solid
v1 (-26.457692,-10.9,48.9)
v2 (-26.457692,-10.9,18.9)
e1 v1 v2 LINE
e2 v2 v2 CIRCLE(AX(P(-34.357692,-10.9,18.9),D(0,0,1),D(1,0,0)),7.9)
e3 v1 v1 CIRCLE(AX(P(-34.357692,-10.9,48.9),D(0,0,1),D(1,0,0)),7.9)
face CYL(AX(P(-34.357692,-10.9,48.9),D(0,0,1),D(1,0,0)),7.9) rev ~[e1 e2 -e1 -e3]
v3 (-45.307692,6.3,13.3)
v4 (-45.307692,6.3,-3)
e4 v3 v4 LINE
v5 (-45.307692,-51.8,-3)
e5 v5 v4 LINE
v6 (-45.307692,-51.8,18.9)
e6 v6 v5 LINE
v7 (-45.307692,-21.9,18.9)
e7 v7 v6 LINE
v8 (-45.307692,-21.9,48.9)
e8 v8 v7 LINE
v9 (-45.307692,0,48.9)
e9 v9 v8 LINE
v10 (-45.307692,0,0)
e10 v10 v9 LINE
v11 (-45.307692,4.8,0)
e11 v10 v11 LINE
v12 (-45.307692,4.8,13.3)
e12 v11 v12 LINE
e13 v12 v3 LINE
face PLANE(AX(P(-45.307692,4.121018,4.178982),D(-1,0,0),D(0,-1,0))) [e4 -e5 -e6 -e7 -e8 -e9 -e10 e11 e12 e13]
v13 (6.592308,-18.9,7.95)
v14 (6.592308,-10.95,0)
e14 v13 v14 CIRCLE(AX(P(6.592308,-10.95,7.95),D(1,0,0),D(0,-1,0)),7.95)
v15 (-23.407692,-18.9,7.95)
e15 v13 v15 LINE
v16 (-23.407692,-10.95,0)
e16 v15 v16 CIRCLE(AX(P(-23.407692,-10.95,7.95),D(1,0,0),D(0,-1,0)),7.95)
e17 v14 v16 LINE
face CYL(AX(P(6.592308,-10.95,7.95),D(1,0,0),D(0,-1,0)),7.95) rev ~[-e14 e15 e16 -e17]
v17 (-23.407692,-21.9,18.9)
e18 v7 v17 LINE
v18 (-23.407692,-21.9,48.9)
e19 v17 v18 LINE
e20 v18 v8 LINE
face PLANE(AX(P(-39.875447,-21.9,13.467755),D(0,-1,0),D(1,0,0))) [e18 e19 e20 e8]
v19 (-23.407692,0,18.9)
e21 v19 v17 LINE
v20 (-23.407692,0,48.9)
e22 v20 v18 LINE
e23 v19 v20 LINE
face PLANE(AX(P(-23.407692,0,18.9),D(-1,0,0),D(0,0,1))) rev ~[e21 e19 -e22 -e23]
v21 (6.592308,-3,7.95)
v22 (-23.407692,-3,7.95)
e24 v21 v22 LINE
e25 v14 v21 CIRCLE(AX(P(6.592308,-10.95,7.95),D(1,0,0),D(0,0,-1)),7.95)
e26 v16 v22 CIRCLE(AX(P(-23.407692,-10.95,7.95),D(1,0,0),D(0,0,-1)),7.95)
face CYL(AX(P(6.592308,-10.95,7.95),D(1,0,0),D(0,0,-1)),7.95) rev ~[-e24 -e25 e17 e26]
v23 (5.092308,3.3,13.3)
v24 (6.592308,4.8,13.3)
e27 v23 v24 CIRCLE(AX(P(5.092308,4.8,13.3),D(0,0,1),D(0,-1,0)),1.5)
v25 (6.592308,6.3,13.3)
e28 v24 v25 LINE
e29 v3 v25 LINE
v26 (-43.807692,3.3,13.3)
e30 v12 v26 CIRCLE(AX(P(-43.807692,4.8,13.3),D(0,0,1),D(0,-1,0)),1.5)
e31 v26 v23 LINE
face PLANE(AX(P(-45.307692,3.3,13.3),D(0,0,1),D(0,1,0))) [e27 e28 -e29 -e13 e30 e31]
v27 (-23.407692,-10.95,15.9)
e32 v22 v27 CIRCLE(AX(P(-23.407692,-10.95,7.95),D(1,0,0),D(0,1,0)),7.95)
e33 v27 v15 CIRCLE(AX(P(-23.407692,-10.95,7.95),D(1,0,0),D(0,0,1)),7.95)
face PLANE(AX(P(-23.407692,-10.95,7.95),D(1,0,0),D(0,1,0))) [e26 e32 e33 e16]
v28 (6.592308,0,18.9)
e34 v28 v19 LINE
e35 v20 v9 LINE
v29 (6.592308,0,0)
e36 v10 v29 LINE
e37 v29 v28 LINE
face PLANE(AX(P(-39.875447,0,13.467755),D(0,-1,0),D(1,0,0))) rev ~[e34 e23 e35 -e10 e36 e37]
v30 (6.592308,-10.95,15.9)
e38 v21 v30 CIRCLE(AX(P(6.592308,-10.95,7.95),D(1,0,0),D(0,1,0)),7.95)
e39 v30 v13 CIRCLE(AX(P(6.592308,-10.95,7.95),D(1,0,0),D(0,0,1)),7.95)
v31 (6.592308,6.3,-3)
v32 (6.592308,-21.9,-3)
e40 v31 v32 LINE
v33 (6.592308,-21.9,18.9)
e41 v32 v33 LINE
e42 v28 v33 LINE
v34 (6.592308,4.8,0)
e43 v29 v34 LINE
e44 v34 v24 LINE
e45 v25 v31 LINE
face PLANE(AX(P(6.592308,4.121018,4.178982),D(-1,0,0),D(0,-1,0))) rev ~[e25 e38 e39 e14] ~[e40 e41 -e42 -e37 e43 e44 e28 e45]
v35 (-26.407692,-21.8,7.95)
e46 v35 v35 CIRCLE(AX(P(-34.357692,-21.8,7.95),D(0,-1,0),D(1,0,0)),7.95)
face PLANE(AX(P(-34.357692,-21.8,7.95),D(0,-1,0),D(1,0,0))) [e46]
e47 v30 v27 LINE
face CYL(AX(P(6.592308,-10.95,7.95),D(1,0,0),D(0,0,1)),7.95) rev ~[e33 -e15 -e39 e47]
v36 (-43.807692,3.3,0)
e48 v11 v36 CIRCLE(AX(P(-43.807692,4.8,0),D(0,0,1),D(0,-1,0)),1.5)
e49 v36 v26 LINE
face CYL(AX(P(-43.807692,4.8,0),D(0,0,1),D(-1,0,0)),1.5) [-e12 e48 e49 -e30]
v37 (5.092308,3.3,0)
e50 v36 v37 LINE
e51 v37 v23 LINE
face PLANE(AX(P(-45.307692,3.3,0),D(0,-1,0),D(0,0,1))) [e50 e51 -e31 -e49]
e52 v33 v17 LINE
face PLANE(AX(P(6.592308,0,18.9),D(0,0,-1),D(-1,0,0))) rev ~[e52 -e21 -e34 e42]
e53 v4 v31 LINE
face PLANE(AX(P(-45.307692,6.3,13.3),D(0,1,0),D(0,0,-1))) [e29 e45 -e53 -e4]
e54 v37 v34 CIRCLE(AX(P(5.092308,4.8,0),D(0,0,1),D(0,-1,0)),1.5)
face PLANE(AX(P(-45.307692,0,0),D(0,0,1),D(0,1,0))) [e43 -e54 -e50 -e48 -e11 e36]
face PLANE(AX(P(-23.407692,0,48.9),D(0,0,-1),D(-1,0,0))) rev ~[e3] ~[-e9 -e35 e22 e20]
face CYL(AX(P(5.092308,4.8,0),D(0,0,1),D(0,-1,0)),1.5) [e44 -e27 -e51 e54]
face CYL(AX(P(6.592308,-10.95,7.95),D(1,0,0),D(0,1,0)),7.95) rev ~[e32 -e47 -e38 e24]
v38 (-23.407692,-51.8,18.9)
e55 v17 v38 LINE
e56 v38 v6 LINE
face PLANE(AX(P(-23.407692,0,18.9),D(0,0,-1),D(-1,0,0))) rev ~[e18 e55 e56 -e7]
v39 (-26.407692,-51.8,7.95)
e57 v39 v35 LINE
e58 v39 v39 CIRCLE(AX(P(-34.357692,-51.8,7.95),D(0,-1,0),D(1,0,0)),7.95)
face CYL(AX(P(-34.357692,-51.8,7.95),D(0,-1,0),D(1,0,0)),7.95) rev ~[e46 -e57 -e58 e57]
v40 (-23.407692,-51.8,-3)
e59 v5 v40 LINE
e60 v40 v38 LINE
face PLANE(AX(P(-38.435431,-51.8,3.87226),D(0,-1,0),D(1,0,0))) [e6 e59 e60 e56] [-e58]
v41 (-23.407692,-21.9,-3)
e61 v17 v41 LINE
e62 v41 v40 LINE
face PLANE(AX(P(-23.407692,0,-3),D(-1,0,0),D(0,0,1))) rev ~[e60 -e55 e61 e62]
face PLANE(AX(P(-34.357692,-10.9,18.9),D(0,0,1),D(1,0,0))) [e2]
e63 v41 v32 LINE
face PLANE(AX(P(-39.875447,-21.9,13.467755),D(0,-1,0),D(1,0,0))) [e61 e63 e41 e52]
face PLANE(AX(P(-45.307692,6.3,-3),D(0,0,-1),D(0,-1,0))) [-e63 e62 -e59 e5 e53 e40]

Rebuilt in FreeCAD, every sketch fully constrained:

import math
import FreeCAD as App
import Part
import Sketcher
from FreeCAD import Vector


def edges_at(feature, points):
    """Names of the edges that pass closest to the given points."""
    edges = feature.Shape.Edges
    near = lambda p: min(range(len(edges)), key=lambda i: edges[i].distToShape(Part.Vertex(*p))[0])
    return sorted({f"Edge{near(p) + 1}" for p in points})


def add_polygon(sketch, points):
    """Adds a closed chain of lines whose ends are joined by coincident constraints."""
    first, n = sketch.GeometryCount, len(points)
    for a, b in zip(points, points[1:] + points[:1]):
        sketch.addGeometry(Part.LineSegment(App.Vector(*a, 0), App.Vector(*b, 0)), False)
    for i in range(n):
        sketch.addConstraint(Sketcher.Constraint("Coincident", first + i, 2, first + (i + 1) % n, 1))

doc = App.newDocument("Part")
body = doc.addObject("PartDesign::Body", "Body")

# Sketch on XZ plane
sketch1 = doc.addObject("Sketcher::SketchObject", "Sketch")
body.addObject(sketch1)
sketch1.AttachmentSupport = (doc.XZ_Plane, [""])
sketch1.MapMode = "FlatFace"
add_polygon(sketch1, [(7, 19), (-23, 19), (-23, 49), (-45, 49), (-45, -3), (7, -3)])  # lines 0-5
sketch1.addConstraint([
    Sketcher.Constraint("Horizontal", 0),
    Sketcher.Constraint("Vertical", 1),
    Sketcher.Constraint("Horizontal", 2),
    Sketcher.Constraint("Vertical", 3),
    Sketcher.Constraint("Horizontal", 4),
    Sketcher.Constraint("Vertical", 5),
    Sketcher.Constraint("Equal", 0, 1),
    Sketcher.Constraint("Equal", 4, 3),
    Sketcher.Constraint("DistanceX", 0, 2, 0, 1, 30.0),
    Sketcher.Constraint("DistanceX", 2, 2, 2, 1, 21.9),
    Sketcher.Constraint("DistanceY", 3, 2, -1, 1, 3.0),
    Sketcher.Constraint("DistanceX", 0, 2, -1, 1, 23.407692),
])
pad1 = doc.addObject("PartDesign::Pad", "Pad")
body.addObject(pad1)
pad1.Profile = sketch1
pad1.Length = 21.9

# Sketch on XZ plane
sketch2 = doc.addObject("Sketcher::SketchObject", "Sketch001")
body.addObject(sketch2)
sketch2.AttachmentSupport = (doc.XZ_Plane, [""])
sketch2.MapMode = "FlatFace"
add_polygon(sketch2, [(-23, -3), (-23, 19), (-45, 19), (-45, -3)])  # lines 0-3
sketch2.addConstraint([
    Sketcher.Constraint("Vertical", 0),
    Sketcher.Constraint("Horizontal", 1),
    Sketcher.Constraint("Vertical", 2),
    Sketcher.Constraint("Horizontal", 3),
    Sketcher.Constraint("Equal", 3, 0),
    Sketcher.Constraint("DistanceX", 1, 2, 1, 1, 21.9),
    Sketcher.Constraint("DistanceY", 2, 2, -1, 1, 3.0),
    Sketcher.Constraint("DistanceX", 0, 2, -1, 1, 23.407692),
])
pad2 = doc.addObject("PartDesign::Pad", "Pad001")
body.addObject(pad2)
pad2.Profile = sketch2
pad2.Length = 51.8

# Sketch on XZ plane
sketch3 = doc.addObject("Sketcher::SketchObject", "Sketch002")
body.addObject(sketch3)
sketch3.AttachmentSupport = (doc.XZ_Plane, [""])
sketch3.MapMode = "FlatFace"
sketch3.AttachmentOffset = App.Placement(Vector(0, 0, 51.8), App.Rotation())
sketch3.addGeometry(Part.Circle(Vector(-34, 8, 0), Vector(0, 0, 1), 8), False)
sketch3.addConstraint([
    Sketcher.Constraint("Diameter", 0, 15.9),
    Sketcher.Constraint("DistanceY", -1, 1, 0, 3, 7.95),
    Sketcher.Constraint("DistanceX", 0, 3, -1, 1, 34.357692),
])
pocket1 = doc.addObject("PartDesign::Pocket", "Pocket")
body.addObject(pocket1)
pocket1.Profile = sketch3
pocket1.Length = 30

# Sketch on YZ plane
sketch4 = doc.addObject("Sketcher::SketchObject", "Sketch003")
body.addObject(sketch4)
sketch4.AttachmentSupport = (doc.YZ_Plane, [""])
sketch4.MapMode = "FlatFace"
sketch4.AttachmentOffset = App.Placement(Vector(0, 0, 6.592308), App.Rotation())
sketch4.addGeometry([
    Part.ArcOfCircle(Part.Circle(Vector(-11, 8, 0), Vector(0, 0, 1), 8), math.radians(0), math.radians(90)),
    Part.ArcOfCircle(Part.Circle(Vector(-11, 8, 0), Vector(0, 0, 1), 8), math.radians(90), math.radians(180)),
    Part.ArcOfCircle(Part.Circle(Vector(-11, 8, 0), Vector(0, 0, 1), 8), math.radians(180), math.radians(270)),
    Part.ArcOfCircle(Part.Circle(Vector(-11, 8, 0), Vector(0, 0, 1), 8), math.radians(-90), math.radians(0)),
], False)
sketch4.addConstraint([
    Sketcher.Constraint("Tangent", 0, 2, 1, 1),
    Sketcher.Constraint("Tangent", 1, 2, 2, 1),
    Sketcher.Constraint("Tangent", 2, 2, 3, 1),
    Sketcher.Constraint("Tangent", 3, 2, 0, 1),
    Sketcher.Constraint("Equal", 0, 1),
    Sketcher.Constraint("PointOnObject", 2, 2, -1),
    Sketcher.Constraint("Horizontal", 3, 3, 1, 2),
    Sketcher.Constraint("Horizontal", 1, 2, 3, 2),
    Sketcher.Constraint("Vertical", 3, 3, 0, 2),
    Sketcher.Constraint("Vertical", 0, 2, 2, 2),
    Sketcher.Constraint("Radius", 0, 7.95),
    Sketcher.Constraint("DistanceX", 3, 2, -1, 1, 3.0),
])
pocket2 = doc.addObject("PartDesign::Pocket", "Pocket001")
body.addObject(pocket2)
pocket2.Profile = sketch4
pocket2.Length = 30

# Sketch on XY plane
sketch5 = doc.addObject("Sketcher::SketchObject", "Sketch004")
body.addObject(sketch5)
sketch5.AttachmentSupport = (doc.XY_Plane, [""])
sketch5.MapMode = "FlatFace"
sketch5.AttachmentOffset = App.Placement(Vector(0, 0, 48.9), App.Rotation())
sketch5.addGeometry(Part.Circle(Vector(-34, -11, 0), Vector(0, 0, 1), 8), False)
sketch5.addConstraint([
    Sketcher.Constraint("Diameter", 0, 15.8),
    Sketcher.Constraint("DistanceY", 0, 3, -1, 1, 10.9),
    Sketcher.Constraint("DistanceX", 0, 3, -1, 1, 34.357692),
])
pocket3 = doc.addObject("PartDesign::Pocket", "Pocket002")
body.addObject(pocket3)
pocket3.Profile = sketch5
pocket3.Length = 30

# Sketch on YZ plane
sketch6 = doc.addObject("Sketcher::SketchObject", "Sketch005")
body.addObject(sketch6)
sketch6.AttachmentSupport = (doc.YZ_Plane, [""])
sketch6.MapMode = "FlatFace"
sketch6.AttachmentOffset = App.Placement(Vector(0, 0, -45.307692), App.Rotation())
add_polygon(sketch6, [(6.3, -3), (0, -3), (0, 0), (3.3, 0), (3.3, 13.3), (6.3, 13.3)])  # lines 0-5
sketch6.addConstraint([
    Sketcher.Constraint("Horizontal", 0),
    Sketcher.Constraint("Vertical", 1),
    Sketcher.Constraint("Horizontal", 2),
    Sketcher.Constraint("Vertical", 3),
    Sketcher.Constraint("Horizontal", 4),
    Sketcher.Constraint("Vertical", 5),
    Sketcher.Constraint("Coincident", 1, 2, -1, 1),
    Sketcher.Constraint("Equal", 4, 1),
    Sketcher.Constraint("DistanceX", 4, 1, 4, 2, 3.0),
    Sketcher.Constraint("DistanceX", 0, 2, 0, 1, 6.3),
    Sketcher.Constraint("DistanceY", 3, 1, 3, 2, 13.3),
])
pad3 = doc.addObject("PartDesign::Pad", "Pad002")
body.addObject(pad3)
pad3.Profile = sketch6
pad3.Length = 51.9
doc.recompute()

fillet = doc.addObject("PartDesign::Fillet", "Fillet")
body.addObject(fillet)
fillet.Base = (pad3, edges_at(pad3, [(-45.308, 3.3, 6.65), (6.592, 3.3, 6.65)]))
fillet.Radius = 1.5

doc.recompute()
